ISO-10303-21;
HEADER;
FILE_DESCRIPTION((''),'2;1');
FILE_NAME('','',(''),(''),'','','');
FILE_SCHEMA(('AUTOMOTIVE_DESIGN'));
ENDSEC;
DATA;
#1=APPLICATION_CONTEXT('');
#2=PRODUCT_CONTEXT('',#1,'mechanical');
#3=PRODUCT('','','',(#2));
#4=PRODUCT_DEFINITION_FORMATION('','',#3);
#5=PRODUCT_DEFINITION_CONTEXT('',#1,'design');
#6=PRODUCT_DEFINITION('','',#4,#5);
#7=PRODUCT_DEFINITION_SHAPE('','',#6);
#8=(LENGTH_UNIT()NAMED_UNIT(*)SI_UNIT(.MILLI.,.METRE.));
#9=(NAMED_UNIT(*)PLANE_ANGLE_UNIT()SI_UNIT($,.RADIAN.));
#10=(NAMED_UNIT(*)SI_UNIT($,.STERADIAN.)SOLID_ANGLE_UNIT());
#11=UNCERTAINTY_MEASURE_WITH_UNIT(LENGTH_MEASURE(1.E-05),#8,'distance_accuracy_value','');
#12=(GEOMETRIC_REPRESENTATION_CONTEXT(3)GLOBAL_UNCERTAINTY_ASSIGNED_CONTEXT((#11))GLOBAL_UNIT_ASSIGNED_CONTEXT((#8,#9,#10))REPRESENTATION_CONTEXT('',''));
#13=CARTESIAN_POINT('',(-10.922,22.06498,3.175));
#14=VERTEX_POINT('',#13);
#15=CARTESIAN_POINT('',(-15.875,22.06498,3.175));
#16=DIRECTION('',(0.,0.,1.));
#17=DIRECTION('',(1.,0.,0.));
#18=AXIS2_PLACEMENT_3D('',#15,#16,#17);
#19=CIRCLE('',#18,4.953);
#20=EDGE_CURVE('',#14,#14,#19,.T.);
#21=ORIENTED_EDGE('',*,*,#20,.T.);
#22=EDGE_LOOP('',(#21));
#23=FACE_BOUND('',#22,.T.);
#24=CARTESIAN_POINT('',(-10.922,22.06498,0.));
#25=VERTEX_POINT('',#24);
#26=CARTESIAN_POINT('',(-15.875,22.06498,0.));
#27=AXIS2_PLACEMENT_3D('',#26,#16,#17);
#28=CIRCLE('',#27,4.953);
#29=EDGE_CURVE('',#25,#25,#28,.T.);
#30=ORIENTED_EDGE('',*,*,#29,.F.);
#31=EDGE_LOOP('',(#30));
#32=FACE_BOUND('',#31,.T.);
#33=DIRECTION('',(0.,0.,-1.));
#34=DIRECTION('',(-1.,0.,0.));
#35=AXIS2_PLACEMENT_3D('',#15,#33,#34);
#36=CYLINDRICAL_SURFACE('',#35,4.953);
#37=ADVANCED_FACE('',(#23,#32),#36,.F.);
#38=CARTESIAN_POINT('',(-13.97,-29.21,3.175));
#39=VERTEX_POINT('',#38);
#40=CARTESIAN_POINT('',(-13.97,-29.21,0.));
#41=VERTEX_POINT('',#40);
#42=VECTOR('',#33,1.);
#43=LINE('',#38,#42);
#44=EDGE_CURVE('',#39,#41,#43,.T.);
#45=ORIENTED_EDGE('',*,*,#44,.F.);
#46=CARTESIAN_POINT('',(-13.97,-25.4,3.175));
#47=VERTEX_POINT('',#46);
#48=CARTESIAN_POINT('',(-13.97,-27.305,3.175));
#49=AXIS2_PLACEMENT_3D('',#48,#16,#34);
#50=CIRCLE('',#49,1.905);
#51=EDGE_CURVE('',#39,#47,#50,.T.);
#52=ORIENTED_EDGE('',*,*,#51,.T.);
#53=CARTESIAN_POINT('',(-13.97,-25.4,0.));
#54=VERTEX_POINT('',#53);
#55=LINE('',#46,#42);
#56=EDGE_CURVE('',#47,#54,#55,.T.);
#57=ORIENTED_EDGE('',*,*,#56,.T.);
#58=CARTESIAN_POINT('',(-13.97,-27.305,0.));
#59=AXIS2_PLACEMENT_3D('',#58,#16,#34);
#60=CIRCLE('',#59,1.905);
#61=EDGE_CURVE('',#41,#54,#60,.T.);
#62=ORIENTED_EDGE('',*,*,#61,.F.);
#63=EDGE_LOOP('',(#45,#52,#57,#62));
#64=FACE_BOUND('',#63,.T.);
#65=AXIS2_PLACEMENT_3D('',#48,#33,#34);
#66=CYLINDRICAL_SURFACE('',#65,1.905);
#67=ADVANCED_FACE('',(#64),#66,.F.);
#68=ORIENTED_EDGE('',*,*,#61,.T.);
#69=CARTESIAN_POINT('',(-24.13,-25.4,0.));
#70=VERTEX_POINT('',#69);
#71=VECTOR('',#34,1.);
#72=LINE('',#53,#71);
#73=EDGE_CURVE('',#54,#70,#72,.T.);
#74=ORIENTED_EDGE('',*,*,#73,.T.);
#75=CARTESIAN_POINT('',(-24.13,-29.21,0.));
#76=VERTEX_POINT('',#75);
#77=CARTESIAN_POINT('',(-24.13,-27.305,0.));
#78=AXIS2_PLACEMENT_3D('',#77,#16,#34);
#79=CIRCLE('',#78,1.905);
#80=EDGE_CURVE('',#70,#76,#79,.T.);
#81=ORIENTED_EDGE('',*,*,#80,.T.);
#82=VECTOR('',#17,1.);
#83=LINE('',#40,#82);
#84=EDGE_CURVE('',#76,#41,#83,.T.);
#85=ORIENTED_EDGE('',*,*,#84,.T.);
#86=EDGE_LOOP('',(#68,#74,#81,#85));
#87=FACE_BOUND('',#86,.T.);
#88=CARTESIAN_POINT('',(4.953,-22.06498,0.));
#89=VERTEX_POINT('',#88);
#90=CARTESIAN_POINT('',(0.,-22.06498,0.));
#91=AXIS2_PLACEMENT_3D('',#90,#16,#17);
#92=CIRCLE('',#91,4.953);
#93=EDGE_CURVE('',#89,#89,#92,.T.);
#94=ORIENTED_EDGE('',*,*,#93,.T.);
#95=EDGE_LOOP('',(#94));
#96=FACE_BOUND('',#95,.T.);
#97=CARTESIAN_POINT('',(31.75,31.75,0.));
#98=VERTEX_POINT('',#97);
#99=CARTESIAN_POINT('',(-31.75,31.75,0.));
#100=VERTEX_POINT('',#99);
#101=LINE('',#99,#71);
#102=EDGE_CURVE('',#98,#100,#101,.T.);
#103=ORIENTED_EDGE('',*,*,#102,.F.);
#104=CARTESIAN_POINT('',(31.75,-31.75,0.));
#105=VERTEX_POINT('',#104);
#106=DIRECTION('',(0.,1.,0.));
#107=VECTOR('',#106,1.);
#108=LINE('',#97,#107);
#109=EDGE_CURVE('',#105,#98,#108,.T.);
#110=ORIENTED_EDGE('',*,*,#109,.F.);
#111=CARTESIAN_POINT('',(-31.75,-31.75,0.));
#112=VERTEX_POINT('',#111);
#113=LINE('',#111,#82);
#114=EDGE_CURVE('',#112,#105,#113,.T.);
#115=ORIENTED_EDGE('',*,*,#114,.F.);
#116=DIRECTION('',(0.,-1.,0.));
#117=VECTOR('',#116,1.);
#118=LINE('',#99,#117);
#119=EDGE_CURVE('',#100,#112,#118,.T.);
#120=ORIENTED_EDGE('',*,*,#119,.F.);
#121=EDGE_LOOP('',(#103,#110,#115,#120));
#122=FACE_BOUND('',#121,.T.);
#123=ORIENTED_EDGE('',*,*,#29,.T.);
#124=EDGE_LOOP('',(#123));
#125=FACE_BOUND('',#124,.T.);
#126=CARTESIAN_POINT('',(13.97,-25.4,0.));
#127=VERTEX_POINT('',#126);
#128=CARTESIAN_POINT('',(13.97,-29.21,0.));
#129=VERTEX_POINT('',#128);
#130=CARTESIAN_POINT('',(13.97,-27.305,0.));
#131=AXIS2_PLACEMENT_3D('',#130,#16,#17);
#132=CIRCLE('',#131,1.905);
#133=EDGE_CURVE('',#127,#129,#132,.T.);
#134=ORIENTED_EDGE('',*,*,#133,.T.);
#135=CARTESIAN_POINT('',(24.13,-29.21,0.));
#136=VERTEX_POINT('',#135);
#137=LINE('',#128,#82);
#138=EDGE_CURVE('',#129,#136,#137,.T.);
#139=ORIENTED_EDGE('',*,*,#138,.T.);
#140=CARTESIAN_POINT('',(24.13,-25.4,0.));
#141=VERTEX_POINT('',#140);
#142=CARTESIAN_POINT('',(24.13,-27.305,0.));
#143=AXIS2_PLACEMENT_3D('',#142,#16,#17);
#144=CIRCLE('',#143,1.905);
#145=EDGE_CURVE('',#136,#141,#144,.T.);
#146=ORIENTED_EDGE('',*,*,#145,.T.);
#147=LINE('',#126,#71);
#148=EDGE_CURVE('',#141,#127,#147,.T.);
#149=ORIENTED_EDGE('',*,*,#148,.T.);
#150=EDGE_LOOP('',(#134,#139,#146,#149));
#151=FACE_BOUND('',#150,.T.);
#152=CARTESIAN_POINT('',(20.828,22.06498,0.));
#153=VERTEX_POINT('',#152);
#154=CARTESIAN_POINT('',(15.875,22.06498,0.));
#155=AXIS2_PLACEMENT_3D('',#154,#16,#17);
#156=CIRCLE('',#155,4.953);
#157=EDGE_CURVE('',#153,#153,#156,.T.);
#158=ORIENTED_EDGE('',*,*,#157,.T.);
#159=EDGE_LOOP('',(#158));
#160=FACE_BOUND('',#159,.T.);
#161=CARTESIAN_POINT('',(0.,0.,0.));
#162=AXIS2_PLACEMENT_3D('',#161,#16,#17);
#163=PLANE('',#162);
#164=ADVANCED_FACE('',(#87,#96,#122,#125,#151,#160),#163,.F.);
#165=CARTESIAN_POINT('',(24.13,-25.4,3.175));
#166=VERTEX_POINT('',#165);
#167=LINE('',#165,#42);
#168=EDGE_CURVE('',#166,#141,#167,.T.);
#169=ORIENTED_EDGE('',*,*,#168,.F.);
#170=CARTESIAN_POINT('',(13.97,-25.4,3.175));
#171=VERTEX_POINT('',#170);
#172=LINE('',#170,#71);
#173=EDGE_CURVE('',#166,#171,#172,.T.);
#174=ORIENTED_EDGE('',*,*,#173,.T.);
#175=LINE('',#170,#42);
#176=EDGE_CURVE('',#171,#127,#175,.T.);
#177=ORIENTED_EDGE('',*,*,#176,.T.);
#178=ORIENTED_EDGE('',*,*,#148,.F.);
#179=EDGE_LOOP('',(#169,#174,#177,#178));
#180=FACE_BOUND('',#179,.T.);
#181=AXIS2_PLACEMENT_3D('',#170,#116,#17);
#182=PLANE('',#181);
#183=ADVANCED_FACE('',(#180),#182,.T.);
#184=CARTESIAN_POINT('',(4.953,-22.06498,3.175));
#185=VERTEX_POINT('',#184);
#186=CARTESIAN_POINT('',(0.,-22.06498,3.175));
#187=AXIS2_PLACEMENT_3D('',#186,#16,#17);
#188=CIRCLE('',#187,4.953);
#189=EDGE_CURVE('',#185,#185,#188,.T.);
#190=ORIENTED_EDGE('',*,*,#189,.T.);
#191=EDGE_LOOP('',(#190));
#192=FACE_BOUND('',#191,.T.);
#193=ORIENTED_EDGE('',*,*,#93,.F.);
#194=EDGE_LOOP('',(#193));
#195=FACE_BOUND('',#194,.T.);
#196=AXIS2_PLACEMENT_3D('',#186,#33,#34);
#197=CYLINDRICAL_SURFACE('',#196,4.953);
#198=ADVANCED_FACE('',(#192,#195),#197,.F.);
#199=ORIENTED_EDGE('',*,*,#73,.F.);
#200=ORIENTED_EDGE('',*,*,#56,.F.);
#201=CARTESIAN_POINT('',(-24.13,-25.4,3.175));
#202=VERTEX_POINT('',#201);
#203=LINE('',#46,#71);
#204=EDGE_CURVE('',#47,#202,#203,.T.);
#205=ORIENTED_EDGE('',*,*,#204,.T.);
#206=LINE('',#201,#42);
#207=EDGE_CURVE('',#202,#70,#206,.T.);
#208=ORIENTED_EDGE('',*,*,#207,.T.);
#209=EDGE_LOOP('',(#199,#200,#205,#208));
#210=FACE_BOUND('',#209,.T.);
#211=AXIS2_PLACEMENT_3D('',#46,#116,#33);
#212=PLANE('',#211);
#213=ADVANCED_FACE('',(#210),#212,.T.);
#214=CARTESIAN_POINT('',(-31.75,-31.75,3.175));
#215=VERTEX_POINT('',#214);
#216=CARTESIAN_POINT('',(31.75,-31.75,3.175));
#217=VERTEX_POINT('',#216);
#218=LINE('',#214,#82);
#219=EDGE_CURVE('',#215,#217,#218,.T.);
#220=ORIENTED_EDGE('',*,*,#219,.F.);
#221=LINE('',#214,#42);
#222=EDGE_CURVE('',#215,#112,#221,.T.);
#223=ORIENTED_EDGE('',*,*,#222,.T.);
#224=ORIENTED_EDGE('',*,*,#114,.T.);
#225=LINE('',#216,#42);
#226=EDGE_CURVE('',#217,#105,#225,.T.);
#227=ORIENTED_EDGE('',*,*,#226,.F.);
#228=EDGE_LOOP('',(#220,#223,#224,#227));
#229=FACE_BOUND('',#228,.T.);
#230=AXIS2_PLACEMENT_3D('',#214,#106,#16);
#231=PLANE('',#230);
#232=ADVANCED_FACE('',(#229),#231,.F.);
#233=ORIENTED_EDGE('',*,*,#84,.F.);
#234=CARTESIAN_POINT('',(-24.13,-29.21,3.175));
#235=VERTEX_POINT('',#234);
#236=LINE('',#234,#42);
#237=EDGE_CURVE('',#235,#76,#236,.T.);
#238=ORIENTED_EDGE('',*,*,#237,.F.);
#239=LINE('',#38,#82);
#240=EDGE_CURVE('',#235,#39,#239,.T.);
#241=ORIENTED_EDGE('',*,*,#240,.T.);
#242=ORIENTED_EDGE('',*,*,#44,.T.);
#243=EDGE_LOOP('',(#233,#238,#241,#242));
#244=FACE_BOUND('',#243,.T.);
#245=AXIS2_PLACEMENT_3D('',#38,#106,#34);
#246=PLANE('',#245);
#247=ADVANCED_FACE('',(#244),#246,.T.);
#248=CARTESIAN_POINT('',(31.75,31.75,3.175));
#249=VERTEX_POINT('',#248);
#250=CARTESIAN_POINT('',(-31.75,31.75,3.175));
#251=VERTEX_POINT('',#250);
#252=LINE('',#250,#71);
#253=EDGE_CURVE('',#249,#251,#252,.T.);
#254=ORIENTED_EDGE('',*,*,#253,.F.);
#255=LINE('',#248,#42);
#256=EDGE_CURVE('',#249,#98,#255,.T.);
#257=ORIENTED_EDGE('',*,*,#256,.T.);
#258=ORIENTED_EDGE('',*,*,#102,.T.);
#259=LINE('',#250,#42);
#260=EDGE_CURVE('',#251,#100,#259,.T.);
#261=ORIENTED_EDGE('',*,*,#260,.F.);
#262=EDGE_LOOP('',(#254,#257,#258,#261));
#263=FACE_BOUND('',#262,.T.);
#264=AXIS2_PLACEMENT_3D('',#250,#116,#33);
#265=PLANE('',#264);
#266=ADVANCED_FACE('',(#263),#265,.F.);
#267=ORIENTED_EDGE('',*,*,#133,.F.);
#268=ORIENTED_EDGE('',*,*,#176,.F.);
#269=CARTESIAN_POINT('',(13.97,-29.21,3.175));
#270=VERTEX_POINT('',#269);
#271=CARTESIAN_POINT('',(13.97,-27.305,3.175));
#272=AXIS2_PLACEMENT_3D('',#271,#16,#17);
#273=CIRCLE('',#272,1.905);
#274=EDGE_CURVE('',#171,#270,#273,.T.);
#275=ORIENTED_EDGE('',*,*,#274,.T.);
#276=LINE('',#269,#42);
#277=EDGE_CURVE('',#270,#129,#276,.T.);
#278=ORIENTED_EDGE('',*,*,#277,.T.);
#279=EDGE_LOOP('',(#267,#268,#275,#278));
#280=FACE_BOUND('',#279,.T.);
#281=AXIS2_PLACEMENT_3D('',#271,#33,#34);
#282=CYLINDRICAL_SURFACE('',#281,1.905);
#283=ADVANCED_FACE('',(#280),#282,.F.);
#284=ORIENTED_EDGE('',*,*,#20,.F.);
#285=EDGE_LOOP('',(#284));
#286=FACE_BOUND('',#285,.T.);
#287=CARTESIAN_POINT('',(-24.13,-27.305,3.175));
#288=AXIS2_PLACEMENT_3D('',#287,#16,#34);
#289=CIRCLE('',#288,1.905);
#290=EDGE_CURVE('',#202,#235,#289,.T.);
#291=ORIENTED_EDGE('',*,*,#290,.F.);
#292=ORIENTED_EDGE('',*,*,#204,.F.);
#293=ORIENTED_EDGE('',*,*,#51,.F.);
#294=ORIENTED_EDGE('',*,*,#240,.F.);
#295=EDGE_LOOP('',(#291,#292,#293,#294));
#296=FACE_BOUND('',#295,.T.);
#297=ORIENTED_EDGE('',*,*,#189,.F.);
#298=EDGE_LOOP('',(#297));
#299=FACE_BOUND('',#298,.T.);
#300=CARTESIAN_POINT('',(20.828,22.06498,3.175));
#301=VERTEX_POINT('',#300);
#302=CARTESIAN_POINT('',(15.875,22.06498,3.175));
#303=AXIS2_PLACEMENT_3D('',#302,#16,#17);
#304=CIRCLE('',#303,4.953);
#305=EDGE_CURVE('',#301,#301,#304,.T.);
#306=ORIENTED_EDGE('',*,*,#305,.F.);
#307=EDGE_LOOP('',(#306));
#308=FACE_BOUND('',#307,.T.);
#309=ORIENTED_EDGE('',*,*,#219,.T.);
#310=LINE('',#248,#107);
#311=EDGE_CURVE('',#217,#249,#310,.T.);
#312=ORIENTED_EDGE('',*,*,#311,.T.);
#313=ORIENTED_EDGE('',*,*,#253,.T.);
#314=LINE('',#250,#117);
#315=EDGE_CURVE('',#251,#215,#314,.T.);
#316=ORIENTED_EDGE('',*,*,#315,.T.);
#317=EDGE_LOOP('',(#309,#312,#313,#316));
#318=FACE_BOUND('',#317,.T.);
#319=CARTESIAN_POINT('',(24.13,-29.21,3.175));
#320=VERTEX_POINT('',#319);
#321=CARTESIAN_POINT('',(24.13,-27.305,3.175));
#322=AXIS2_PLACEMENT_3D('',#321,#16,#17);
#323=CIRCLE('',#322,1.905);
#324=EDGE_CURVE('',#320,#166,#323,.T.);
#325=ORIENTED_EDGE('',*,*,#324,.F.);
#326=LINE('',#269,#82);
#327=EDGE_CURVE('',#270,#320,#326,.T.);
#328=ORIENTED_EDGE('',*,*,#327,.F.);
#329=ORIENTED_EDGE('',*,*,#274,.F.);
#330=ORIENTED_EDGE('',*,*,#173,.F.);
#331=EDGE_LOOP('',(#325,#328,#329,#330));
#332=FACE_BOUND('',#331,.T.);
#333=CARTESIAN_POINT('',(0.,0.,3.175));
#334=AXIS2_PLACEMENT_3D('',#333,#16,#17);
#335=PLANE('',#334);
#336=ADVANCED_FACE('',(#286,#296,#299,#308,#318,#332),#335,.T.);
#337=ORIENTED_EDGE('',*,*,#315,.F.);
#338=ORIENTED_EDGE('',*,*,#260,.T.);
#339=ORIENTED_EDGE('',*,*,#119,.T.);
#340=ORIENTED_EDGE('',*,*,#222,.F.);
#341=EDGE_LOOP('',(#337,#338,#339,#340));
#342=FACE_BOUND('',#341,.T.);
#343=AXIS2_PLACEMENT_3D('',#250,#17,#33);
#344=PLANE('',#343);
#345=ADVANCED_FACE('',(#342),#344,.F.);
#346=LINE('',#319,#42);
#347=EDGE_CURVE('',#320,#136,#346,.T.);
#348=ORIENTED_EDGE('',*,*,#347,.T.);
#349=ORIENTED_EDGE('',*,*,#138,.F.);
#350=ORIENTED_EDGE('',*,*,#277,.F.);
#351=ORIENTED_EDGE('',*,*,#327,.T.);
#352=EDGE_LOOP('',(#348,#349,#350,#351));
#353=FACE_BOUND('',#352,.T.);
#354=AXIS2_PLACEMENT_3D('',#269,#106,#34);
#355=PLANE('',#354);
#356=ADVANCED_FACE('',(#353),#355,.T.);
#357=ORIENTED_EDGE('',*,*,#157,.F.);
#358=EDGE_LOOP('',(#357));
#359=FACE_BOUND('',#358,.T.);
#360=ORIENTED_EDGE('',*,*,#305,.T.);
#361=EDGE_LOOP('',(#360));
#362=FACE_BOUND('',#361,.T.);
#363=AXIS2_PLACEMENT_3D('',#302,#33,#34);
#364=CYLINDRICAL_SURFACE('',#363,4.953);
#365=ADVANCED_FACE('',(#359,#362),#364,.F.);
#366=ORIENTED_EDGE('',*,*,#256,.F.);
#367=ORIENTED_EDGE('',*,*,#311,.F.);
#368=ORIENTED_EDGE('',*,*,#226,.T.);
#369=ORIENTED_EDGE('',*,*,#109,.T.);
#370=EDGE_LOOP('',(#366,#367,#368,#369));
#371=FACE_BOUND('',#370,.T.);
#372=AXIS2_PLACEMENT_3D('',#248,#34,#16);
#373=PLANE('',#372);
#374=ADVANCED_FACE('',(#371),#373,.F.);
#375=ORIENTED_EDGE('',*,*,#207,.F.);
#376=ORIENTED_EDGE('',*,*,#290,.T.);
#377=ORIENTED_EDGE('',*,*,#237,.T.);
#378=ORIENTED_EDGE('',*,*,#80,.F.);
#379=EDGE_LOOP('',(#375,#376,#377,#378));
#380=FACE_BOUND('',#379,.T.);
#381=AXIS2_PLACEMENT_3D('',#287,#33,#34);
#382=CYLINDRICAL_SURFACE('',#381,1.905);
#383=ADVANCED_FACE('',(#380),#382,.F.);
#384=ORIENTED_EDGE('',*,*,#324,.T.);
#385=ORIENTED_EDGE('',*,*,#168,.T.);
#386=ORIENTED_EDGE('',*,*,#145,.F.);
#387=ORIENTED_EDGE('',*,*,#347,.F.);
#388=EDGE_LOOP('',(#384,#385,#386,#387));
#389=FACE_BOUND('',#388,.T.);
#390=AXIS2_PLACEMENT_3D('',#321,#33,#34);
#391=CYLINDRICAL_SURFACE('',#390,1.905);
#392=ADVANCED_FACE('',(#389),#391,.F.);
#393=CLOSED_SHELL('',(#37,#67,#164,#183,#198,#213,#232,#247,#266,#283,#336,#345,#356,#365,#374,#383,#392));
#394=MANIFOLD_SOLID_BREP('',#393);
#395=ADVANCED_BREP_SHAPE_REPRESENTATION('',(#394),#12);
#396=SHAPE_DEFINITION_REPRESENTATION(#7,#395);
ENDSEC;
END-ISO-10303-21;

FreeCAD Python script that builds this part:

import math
import FreeCAD as App
import Part
import Sketcher
from FreeCAD import Vector
Q = App.Units.Quantity


def add_polygon(sketch, points):
    """Adds a closed chain of lines whose ends are joined by coincident constraints."""
    first, n = sketch.GeometryCount, len(points)
    for a, b in zip(points, points[1:] + points[:1]):
        sketch.addGeometry(Part.LineSegment(App.Vector(*a, 0), App.Vector(*b, 0)), False)
    for i in range(n):
        sketch.addConstraint(Sketcher.Constraint("Coincident", first + i, 2, first + (i + 1) % n, 1))

doc = App.newDocument("Part")
params = doc.addObject("Spreadsheet::Sheet", "Params")
for row, (alias, value) in enumerate([
    ("sketch1_diameter", "0.39 in"),
    ("sketch1_width", "2.5 in"),
    ("sketch1_width2", "0.4 in"),
    ("sketch1_radius", "0.075 in"),
    ("pad1_length", "0.125 in"),
], start=1):
    params.set(f"A{row}", alias)
    params.set(f"B{row}", "=" + value)
    params.setAlias(f"B{row}", alias)

body = doc.addObject("PartDesign::Body", "Body")

# Sketch on XY plane
sketch1 = body.newObject("Sketcher::SketchObject", "Sketch")
sketch1.AttachmentSupport = (doc.getObject("XY_Plane"), [""])
sketch1.MapMode = "FlatFace"
add_polygon(sketch1, [(-31.75, 31.75), (-31.75, -31.75), (31.75, -31.75), (31.75, 31.75)])  # lines 0-3
sketch1.addGeometry(Part.LineSegment(Vector(-24.13, -25.4, 0), Vector(-13.97, -25.4, 0)), False)  # 4
sketch1.addGeometry(Part.ArcOfCircle(Part.Circle(Vector(-13.97, -27.305, 0), Vector(0, 0, 1), 1.905), math.radians(-90), math.radians(90)), False)  # 5
sketch1.addGeometry(Part.LineSegment(Vector(-13.97, -29.21, 0), Vector(-24.13, -29.21, 0)), False)  # 6
sketch1.addGeometry(Part.ArcOfCircle(Part.Circle(Vector(-24.13, -27.305, 0), Vector(0, 0, 1), 1.905), math.radians(90), math.radians(270)), False)  # 7
sketch1.addGeometry(Part.Circle(Vector(0, -22.06498, 0), Vector(0, 0, 1), 4.953), False)  # 8
sketch1.addGeometry(Part.ArcOfCircle(Part.Circle(Vector(13.97, -27.305, 0), Vector(0, 0, 1), 1.905), math.radians(90), math.radians(270)), False)  # 9
sketch1.addGeometry(Part.LineSegment(Vector(13.97, -25.4, 0), Vector(24.13, -25.4, 0)), False)  # 10
sketch1.addGeometry(Part.ArcOfCircle(Part.Circle(Vector(24.13, -27.305, 0), Vector(0, 0, 1), 1.905), math.radians(-90), math.radians(90)), False)  # 11
sketch1.addGeometry(Part.LineSegment(Vector(24.13, -29.21, 0), Vector(13.97, -29.21, 0)), False)  # 12
sketch1.addGeometry(Part.Circle(Vector(-15.875, 22.06498, 0), Vector(0, 0, 1), 4.953), False)  # 13
sketch1.addGeometry(Part.Circle(Vector(15.875, 22.06498, 0), Vector(0, 0, 1), 4.953), False)  # 14
sketch1.addConstraint(Sketcher.Constraint("Tangent", 4, 2, 5, 2))
sketch1.addConstraint(Sketcher.Constraint("Tangent", 5, 1, 6, 1))
sketch1.addConstraint(Sketcher.Constraint("Tangent", 6, 2, 7, 2))
sketch1.addConstraint(Sketcher.Constraint("Tangent", 7, 1, 4, 1))
sketch1.addConstraint(Sketcher.Constraint("Tangent", 9, 1, 10, 1))
sketch1.addConstraint(Sketcher.Constraint("Tangent", 10, 2, 11, 2))
sketch1.addConstraint(Sketcher.Constraint("Tangent", 11, 1, 12, 1))
sketch1.addConstraint(Sketcher.Constraint("Tangent", 12, 2, 9, 2))
sketch1.addConstraint(Sketcher.Constraint("Vertical", 0))
sketch1.addConstraint(Sketcher.Constraint("Horizontal", 1))
sketch1.addConstraint(Sketcher.Constraint("Vertical", 2))
sketch1.addConstraint(Sketcher.Constraint("Horizontal", 3))
sketch1.addConstraint(Sketcher.Constraint("Horizontal", 4))
sketch1.addConstraint(Sketcher.Constraint("Horizontal", 6))
sketch1.addConstraint(Sketcher.Constraint("Horizontal", 10))
sketch1.addConstraint(Sketcher.Constraint("Horizontal", 12))
sketch1.addConstraint(Sketcher.Constraint("Equal", 7, 9))
sketch1.addConstraint(Sketcher.Constraint("Equal", 8, 13))
sketch1.addConstraint(Sketcher.Constraint("Equal", 13, 14))
sketch1.addConstraint(Sketcher.Constraint("Symmetric", 0, 2, 2, 2, -1, 1))
sketch1.addConstraint(Sketcher.Constraint("Symmetric", 5, 3, 9, 3, -2))
sketch1.addConstraint(Sketcher.Constraint("Symmetric", 13, 3, 14, 3, -2))
sketch1.addConstraint(Sketcher.Constraint("PointOnObject", 8, 3, -2))
sketch1.addConstraint(Sketcher.Constraint("Equal", 6, 10))
sketch1.addConstraint(Sketcher.Constraint("Equal", 3, 0))
sketch1.addConstraint(Sketcher.Constraint("Diameter", 8, Q("0.39 in")))
sketch1.addConstraint(Sketcher.Constraint("DistanceX", 1, 1, 1, 2, Q("2.5 in")))
sketch1.addConstraint(Sketcher.Constraint("DistanceX", 4, 1, 4, 2, Q("0.4 in")))
sketch1.addConstraint(Sketcher.Constraint("DistanceY", 4, 2, -1, 1, Q("1 in")))
sketch1.addConstraint(Sketcher.Constraint("Radius", 5, Q("0.075 in")))
sketch1.addConstraint(Sketcher.Constraint("DistanceX", 5, 3, 9, 3, Q("1.1 in")))
sketch1.addConstraint(Sketcher.Constraint("DistanceX", 13, 3, 14, 3, Q("1.25 in")))
sketch1.addConstraint(Sketcher.Constraint("DistanceY", 8, 3, -1, 1, Q("0.8687 in")))
sketch1.addConstraint(Sketcher.Constraint("DistanceY", -1, 1, 13, 3, Q("0.8687 in")))
sketch1.setExpression("Constraints[29]", "Params.sketch1_diameter")
sketch1.setExpression("Constraints[30]", "Params.sketch1_width")
sketch1.setExpression("Constraints[31]", "Params.sketch1_width2")
sketch1.setExpression("Constraints[33]", "Params.sketch1_radius")
pad1 = body.newObject("PartDesign::Pad", "Pad")
pad1.Profile = sketch1
pad1.setExpression("Length", "Params.pad1_length")

doc.recompute()
